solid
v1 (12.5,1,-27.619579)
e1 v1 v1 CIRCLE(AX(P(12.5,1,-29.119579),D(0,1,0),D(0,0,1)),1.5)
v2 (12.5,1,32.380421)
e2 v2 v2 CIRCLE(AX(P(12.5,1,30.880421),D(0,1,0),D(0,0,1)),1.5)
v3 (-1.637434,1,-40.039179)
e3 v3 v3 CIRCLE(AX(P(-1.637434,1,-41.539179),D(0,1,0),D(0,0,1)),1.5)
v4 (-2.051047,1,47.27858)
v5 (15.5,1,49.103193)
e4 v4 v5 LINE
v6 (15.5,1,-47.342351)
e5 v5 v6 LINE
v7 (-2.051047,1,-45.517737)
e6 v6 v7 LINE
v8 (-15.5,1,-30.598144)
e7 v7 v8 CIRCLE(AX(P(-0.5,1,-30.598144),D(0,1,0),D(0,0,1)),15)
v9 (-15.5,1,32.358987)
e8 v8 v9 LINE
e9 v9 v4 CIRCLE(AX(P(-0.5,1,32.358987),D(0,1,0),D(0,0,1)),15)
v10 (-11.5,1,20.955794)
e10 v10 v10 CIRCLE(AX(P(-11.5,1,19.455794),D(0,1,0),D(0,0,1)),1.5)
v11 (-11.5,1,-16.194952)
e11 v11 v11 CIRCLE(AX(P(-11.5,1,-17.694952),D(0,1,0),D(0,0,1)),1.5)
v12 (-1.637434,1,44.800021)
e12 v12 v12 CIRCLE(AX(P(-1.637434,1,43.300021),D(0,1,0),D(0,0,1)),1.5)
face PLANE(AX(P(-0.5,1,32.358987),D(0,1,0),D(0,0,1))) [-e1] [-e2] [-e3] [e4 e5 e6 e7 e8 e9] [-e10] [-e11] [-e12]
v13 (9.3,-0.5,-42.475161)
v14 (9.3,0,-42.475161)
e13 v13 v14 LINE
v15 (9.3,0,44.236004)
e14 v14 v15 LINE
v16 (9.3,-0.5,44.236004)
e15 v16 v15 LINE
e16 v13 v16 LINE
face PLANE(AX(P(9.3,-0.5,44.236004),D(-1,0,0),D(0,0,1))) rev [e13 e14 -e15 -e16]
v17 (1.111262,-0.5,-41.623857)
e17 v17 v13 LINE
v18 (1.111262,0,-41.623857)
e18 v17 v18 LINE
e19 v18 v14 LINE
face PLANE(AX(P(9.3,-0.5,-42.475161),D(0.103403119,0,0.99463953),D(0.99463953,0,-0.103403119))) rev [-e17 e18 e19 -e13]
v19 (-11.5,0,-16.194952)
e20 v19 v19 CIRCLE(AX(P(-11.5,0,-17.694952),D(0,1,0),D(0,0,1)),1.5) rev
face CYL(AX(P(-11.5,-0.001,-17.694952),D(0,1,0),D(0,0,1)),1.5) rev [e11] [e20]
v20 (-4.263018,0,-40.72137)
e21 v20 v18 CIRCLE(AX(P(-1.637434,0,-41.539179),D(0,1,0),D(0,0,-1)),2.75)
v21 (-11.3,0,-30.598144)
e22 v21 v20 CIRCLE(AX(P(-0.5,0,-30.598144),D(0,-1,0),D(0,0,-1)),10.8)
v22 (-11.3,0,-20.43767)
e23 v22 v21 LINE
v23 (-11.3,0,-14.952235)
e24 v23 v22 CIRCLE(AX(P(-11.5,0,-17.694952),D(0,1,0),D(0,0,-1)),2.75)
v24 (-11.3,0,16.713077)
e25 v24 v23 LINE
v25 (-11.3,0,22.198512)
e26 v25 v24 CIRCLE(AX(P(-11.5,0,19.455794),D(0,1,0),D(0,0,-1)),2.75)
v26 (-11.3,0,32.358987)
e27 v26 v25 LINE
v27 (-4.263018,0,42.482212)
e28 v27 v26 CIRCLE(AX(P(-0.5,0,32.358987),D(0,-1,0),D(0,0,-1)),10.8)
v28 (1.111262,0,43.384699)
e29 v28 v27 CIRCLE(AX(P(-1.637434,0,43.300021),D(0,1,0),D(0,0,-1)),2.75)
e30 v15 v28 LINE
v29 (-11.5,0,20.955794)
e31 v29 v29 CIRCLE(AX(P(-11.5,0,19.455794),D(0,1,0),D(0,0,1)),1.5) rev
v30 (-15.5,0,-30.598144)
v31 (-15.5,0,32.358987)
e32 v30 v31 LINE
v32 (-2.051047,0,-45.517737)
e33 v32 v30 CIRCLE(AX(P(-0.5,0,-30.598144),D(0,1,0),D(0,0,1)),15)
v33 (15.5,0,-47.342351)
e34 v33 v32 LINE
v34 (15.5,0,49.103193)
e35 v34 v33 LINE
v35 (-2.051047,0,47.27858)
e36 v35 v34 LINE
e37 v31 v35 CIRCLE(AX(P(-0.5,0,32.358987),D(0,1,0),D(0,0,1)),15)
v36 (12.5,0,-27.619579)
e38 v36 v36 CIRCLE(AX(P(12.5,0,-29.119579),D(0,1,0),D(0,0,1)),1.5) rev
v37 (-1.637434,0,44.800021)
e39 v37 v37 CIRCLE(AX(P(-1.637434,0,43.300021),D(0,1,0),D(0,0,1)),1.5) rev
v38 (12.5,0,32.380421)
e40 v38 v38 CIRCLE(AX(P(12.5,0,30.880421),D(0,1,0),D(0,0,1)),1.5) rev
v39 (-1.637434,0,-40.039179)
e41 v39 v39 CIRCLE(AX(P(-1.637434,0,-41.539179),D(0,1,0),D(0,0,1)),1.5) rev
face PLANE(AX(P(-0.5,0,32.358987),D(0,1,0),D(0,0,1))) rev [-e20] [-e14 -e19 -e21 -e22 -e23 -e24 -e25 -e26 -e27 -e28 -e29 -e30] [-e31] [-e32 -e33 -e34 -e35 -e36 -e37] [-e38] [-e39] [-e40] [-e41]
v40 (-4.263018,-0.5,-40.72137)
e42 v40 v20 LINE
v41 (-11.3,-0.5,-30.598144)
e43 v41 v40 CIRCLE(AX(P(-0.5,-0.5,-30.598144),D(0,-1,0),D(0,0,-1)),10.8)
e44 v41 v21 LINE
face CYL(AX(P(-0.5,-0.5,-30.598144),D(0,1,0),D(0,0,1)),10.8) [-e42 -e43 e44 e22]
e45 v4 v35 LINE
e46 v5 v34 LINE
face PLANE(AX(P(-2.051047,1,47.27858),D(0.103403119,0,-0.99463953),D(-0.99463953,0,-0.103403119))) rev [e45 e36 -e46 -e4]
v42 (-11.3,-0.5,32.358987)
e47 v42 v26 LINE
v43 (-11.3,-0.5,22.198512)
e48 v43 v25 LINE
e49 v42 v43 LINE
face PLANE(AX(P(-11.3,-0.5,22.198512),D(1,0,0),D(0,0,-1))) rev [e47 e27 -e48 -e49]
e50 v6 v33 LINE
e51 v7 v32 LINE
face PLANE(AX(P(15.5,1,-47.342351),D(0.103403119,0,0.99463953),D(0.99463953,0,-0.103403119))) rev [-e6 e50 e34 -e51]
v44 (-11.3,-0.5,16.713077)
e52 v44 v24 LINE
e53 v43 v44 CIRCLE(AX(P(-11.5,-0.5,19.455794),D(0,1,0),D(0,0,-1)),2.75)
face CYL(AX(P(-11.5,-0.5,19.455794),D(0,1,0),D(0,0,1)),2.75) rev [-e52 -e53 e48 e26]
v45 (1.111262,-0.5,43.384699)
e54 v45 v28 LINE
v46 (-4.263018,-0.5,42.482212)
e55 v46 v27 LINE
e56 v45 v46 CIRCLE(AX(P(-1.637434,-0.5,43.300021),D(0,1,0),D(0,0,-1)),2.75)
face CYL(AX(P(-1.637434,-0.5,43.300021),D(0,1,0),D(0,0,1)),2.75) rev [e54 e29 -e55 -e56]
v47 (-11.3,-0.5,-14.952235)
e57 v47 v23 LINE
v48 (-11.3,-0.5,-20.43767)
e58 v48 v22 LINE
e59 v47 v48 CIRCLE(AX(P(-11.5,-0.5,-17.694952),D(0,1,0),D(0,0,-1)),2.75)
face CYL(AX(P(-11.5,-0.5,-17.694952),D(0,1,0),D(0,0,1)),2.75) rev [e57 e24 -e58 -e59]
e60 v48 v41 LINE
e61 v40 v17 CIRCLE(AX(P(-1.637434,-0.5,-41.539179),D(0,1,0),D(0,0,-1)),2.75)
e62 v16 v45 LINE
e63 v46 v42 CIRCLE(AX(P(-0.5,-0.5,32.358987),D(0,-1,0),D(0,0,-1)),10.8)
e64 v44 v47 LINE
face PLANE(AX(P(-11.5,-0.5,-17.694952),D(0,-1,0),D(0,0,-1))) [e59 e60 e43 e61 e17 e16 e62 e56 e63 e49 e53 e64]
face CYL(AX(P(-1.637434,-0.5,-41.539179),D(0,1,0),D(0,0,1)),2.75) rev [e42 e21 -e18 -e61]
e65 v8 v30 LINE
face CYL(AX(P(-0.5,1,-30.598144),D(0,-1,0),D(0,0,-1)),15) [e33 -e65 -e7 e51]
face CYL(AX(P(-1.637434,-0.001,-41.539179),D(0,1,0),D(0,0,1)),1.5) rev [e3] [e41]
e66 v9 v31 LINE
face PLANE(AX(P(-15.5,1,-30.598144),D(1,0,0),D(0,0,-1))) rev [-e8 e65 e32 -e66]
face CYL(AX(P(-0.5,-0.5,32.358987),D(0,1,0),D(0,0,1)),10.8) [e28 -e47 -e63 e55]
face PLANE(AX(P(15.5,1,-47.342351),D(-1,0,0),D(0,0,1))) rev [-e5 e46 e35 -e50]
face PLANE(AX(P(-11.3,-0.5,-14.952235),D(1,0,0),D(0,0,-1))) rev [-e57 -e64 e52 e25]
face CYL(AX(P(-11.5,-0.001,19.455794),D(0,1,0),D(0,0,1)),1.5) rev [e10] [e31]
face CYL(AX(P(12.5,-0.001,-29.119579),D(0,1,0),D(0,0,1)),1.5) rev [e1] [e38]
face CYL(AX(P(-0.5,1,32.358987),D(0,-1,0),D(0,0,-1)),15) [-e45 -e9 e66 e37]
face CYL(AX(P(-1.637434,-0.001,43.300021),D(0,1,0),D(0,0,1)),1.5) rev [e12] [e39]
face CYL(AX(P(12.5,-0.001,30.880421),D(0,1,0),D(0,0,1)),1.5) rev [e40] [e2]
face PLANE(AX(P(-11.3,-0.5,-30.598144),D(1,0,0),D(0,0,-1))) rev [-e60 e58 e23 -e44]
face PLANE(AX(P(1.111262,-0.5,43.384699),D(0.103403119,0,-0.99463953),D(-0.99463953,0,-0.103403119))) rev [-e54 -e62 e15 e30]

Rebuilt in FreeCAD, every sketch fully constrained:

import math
import FreeCAD as App
import Part
import Sketcher

V = App.Vector
Q = App.Units.Quantity

doc = App.newDocument("Part")
body = doc.addObject("PartDesign::Body", "Body")

# Sketch on XZ plane
sketch1 = body.newObject("Sketcher::SketchObject", "Sketch")
sketch1.AttachmentSupport = (doc.getObject("XZ_Plane"), [""])
sketch1.MapMode = "FlatFace"
sketch1.addGeometry([
    Part.LineSegment(V(16, -47, 0), V(-2, -46, 0)),  # 0
    Part.ArcOfCircle(Part.Circle(V(0, -31, 0), V(0, 0, 1), 15), math.radians(180), math.radians(264)),  # 1
    Part.LineSegment(V(-16, -31, 0), V(-16, 32, 0)),  # 2
    Part.ArcOfCircle(Part.Circle(V(0, 32, 0), V(0, 0, 1), 15), math.radians(96), math.radians(180)),  # 3
    Part.LineSegment(V(-2, 47, 0), V(16, 49, 0)),  # 4
    Part.LineSegment(V(16, 49, 0), V(16, -47, 0)),  # 5
], False)
sketch1.addConstraint([
    Sketcher.Constraint("Tangent", 0, 2, 1, 2),
    Sketcher.Constraint("Tangent", 1, 1, 2, 1),
    Sketcher.Constraint("Tangent", 2, 2, 3, 2),
    Sketcher.Constraint("Tangent", 3, 1, 4, 1),
    Sketcher.Constraint("Coincident", 4, 2, 5, 1),
    Sketcher.Constraint("Coincident", 5, 2, 0, 1),
    Sketcher.Constraint("Vertical", 2),
    Sketcher.Constraint("Vertical", 5),
    Sketcher.Constraint("Equal", 1, 3),
    Sketcher.Constraint("Vertical", 0, 2, 3, 1),
    Sketcher.Constraint("Radius", 1, Q("15 mm")),
    Sketcher.Constraint("DistanceX", 3, 3, 4, 2, Q("16 mm")),
    Sketcher.Constraint("DistanceX", 1, 3, -1, 1, Q("0.5 mm")),
    Sketcher.Constraint("DistanceY", 2, 1, 2, 2, Q("62.957131 mm")),
    Sketcher.Constraint("DistanceY", 5, 2, 5, 1, Q("96.445545 mm")),
    Sketcher.Constraint("DistanceY", -1, 1, 3, 1, Q("47.27858 mm")),
])
pad1 = body.newObject("PartDesign::Pad", "Pad")
pad1.Profile = sketch1
pad1.Length = 1
pad1.Reversed = True

# Sketch on XZ plane
sketch2 = body.newObject("Sketcher::SketchObject", "Sketch001")
sketch2.AttachmentSupport = (doc.getObject("XZ_Plane"), [""])
sketch2.MapMode = "FlatFace"
sketch2.AttachmentOffset = App.Placement(V(0, 0, -1), App.Rotation())
sketch2.addGeometry(Part.Circle(V(-1.6, -41.5, 0), V(0, 0, 1), 1.5), False)
sketch2.addConstraint([
    Sketcher.Constraint("Diameter", 0, Q("3 mm")),
    Sketcher.Constraint("DistanceY", 0, 3, -1, 1, Q("41.539179 mm")),
    Sketcher.Constraint("DistanceX", 0, 3, -1, 1, Q("1.637434 mm")),
])
pocket1 = body.newObject("PartDesign::Pocket", "Pocket")
pocket1.Profile = sketch2
pocket1.Type = "UpToFirst"
pocket1.Reversed = True

# Sketch on XZ plane
sketch3 = body.newObject("Sketcher::SketchObject", "Sketch002")
sketch3.AttachmentSupport = (doc.getObject("XZ_Plane"), [""])
sketch3.MapMode = "FlatFace"
sketch3.AttachmentOffset = App.Placement(V(0, 0, -1), App.Rotation())
sketch3.addGeometry(Part.Circle(V(-11.5, -17.7, 0), V(0, 0, 1), 1.5), False)
sketch3.addConstraint([
    Sketcher.Constraint("Diameter", 0, Q("3 mm")),
    Sketcher.Constraint("DistanceX", 0, 3, -1, 1, Q("11.5 mm")),
    Sketcher.Constraint("DistanceY", 0, 3, -1, 1, Q("17.694952 mm")),
])
pocket2 = body.newObject("PartDesign::Pocket", "Pocket001")
pocket2.Profile = sketch3
pocket2.Type = "UpToFirst"
pocket2.Reversed = True

# Sketch on XZ plane
sketch4 = body.newObject("Sketcher::SketchObject", "Sketch003")
sketch4.AttachmentSupport = (doc.getObject("XZ_Plane"), [""])
sketch4.MapMode = "FlatFace"
sketch4.AttachmentOffset = App.Placement(V(0, 0, -1), App.Rotation())
sketch4.addGeometry(Part.Circle(V(-11.5, 19.5, 0), V(0, 0, 1), 1.5), False)
sketch4.addConstraint([
    Sketcher.Constraint("Diameter", 0, Q("3 mm")),
    Sketcher.Constraint("DistanceX", 0, 3, -1, 1, Q("11.5 mm")),
    Sketcher.Constraint("DistanceY", -1, 1, 0, 3, Q("19.455794 mm")),
])
pocket3 = body.newObject("PartDesign::Pocket", "Pocket002")
pocket3.Profile = sketch4
pocket3.Type = "UpToFirst"
pocket3.Reversed = True

# Sketch on XZ plane
sketch5 = body.newObject("Sketcher::SketchObject", "Sketch004")
sketch5.AttachmentSupport = (doc.getObject("XZ_Plane"), [""])
sketch5.MapMode = "FlatFace"
sketch5.AttachmentOffset = App.Placement(V(0, 0, -1), App.Rotation())
sketch5.addGeometry(Part.Circle(V(-1.6, 43.3, 0), V(0, 0, 1), 1.5), False)
sketch5.addConstraint([
    Sketcher.Constraint("Diameter", 0, Q("3 mm")),
    Sketcher.Constraint("DistanceY", -1, 1, 0, 3, Q("43.300021 mm")),
    Sketcher.Constraint("DistanceX", 0, 3, -1, 1, Q("1.637434 mm")),
])
pocket4 = body.newObject("PartDesign::Pocket", "Pocket003")
pocket4.Profile = sketch5
pocket4.Type = "UpToFirst"
pocket4.Reversed = True

# Sketch on XZ plane
sketch6 = body.newObject("Sketcher::SketchObject", "Sketch005")
sketch6.AttachmentSupport = (doc.getObject("XZ_Plane"), [""])
sketch6.MapMode = "FlatFace"
sketch6.AttachmentOffset = App.Placement(V(0, 0, -1), App.Rotation())
sketch6.addGeometry(Part.Circle(V(12.5, -29.1, 0), V(0, 0, 1), 1.5), False)
sketch6.addConstraint([
    Sketcher.Constraint("Diameter", 0, Q("3 mm")),
    Sketcher.Constraint("DistanceX", -1, 1, 0, 3, Q("12.5 mm")),
    Sketcher.Constraint("DistanceY", 0, 3, -1, 1, Q("29.119579 mm")),
])
pocket5 = body.newObject("PartDesign::Pocket", "Pocket004")
pocket5.Profile = sketch6
pocket5.Type = "UpToFirst"
pocket5.Reversed = True

# Sketch on XZ plane
sketch7 = body.newObject("Sketcher::SketchObject", "Sketch006")
sketch7.AttachmentSupport = (doc.getObject("XZ_Plane"), [""])
sketch7.MapMode = "FlatFace"
sketch7.AttachmentOffset = App.Placement(V(0, 0, -1), App.Rotation())
sketch7.addGeometry(Part.Circle(V(12.5, 30.9, 0), V(0, 0, 1), 1.5), False)
sketch7.addConstraint([
    Sketcher.Constraint("Diameter", 0, Q("3 mm")),
    Sketcher.Constraint("DistanceX", -1, 1, 0, 3, Q("12.5 mm")),
    Sketcher.Constraint("DistanceY", -1, 1, 0, 3, Q("30.880421 mm")),
])
pocket6 = body.newObject("PartDesign::Pocket", "Pocket005")
pocket6.Profile = sketch7
pocket6.Type = "UpToFirst"
pocket6.Reversed = True

# Sketch on XZ plane
sketch8 = body.newObject("Sketcher::SketchObject", "Sketch007")
sketch8.AttachmentSupport = (doc.getObject("XZ_Plane"), [""])
sketch8.MapMode = "FlatFace"
sketch8.addGeometry([
    Part.LineSegment(V(-11.3, 16.713077, 0), V(-11.3, -14.952235, 0)),  # 0
    Part.ArcOfCircle(Part.Circle(V(-11.5, -17.694952, 0), V(0, 0, 1), 2.75), math.radians(-85.829352), math.radians(85.829352)),  # 1
    Part.LineSegment(V(-11.3, -20.43767, 0), V(-11.3, -30.598144, 0)),  # 2
    Part.ArcOfCircle(Part.Circle(V(-0.5, -30.598144, 0), V(0, 0, 1), 10.8), math.radians(180), math.radians(249.608832)),  # 3
    Part.ArcOfCircle(Part.Circle(V(-1.637434, -41.539179, 0), V(0, 0, 1), 2.75), math.radians(-1.764523), math.radians(162.699383)),  # 4
    Part.LineSegment(V(1.111262, -41.623857, 0), V(9.3, -42.475161, 0)),  # 5
    Part.LineSegment(V(9.3, -42.475161, 0), V(9.3, 44.236004, 0)),  # 6
    Part.LineSegment(V(9.3, 44.236004, 0), V(1.111262, 43.384699, 0)),  # 7
    Part.ArcOfCircle(Part.Circle(V(-1.637434, 43.300021, 0), V(0, 0, 1), 2.75), math.radians(-162.699383), math.radians(1.764523)),  # 8
    Part.ArcOfCircle(Part.Circle(V(-0.5, 32.358987, 0), V(0, 0, 1), 10.8), math.radians(110.391168), math.radians(180)),  # 9
    Part.LineSegment(V(-11.3, 32.358987, 0), V(-11.3, 22.198512, 0)),  # 10
    Part.ArcOfCircle(Part.Circle(V(-11.5, 19.455794, 0), V(0, 0, 1), 2.75), math.radians(-85.829352), math.radians(85.829352)),  # 11
], False)
sketch8.addConstraint([
    Sketcher.Constraint("Coincident", 0, 2, 1, 2),
    Sketcher.Constraint("Coincident", 1, 1, 2, 1),
    Sketcher.Constraint("Coincident", 2, 2, 3, 1),
    Sketcher.Constraint("Coincident", 3, 2, 4, 2),
    Sketcher.Constraint("Coincident", 4, 1, 5, 1),
    Sketcher.Constraint("Coincident", 5, 2, 6, 1),
    Sketcher.Constraint("Coincident", 6, 2, 7, 1),
    Sketcher.Constraint("Coincident", 7, 2, 8, 2),
    Sketcher.Constraint("Coincident", 8, 1, 9, 1),
    Sketcher.Constraint("Coincident", 9, 2, 10, 1),
    Sketcher.Constraint("Coincident", 10, 2, 11, 2),
    Sketcher.Constraint("Coincident", 11, 1, 0, 1),
    Sketcher.Constraint("Vertical", 0),
    Sketcher.Constraint("Vertical", 2),
    Sketcher.Constraint("Vertical", 6),
    Sketcher.Constraint("Vertical", 10),
    Sketcher.Constraint("Radius", 3, Q("10.8 mm")),
    Sketcher.Constraint("Radius", 9, Q("10.8 mm")),
    Sketcher.Constraint("Radius", 1, Q("2.75 mm")),
    Sketcher.Constraint("Radius", 4, Q("2.75 mm")),
    Sketcher.Constraint("Radius", 8, Q("2.75 mm")),
    Sketcher.Constraint("Radius", 11, Q("2.75 mm")),
    Sketcher.Constraint("DistanceX", 1, 3, 3, 3, Q("11 mm")),
    Sketcher.Constraint("DistanceX", 1, 3, 9, 3, Q("11 mm")),
    Sketcher.Constraint("DistanceX", 11, 3, 9, 3, Q("11 mm")),
    Sketcher.Constraint("DistanceX", 1, 3, -1, 1, Q("11.5 mm")),
    Sketcher.Constraint("DistanceX", 0, 2, -1, 1, Q("11.3 mm")),
    Sketcher.Constraint("DistanceX", -1, 1, 5, 2, Q("9.3 mm")),
    Sketcher.Constraint("DistanceY", 0, 2, 0, 1, Q("31.665311 mm")),
    Sketcher.Constraint("DistanceY", -1, 1, 7, 2, Q("43.384699 mm")),
    Sketcher.Constraint("DistanceY", 4, 3, 8, 3, Q("84.839201 mm")),
    Sketcher.Constraint("DistanceY", 3, 2, 1, 1, Q("20.2837 mm")),
    Sketcher.Constraint("DistanceY", 10, 2, 8, 1, Q("20.2837 mm")),
    Sketcher.Constraint("Distance", 5, Q("8.23287 mm")),
    Sketcher.Constraint("Distance", 7, Q("8.23287 mm")),
    Sketcher.Constraint("DistanceY", 2, 2, 2, 1, Q("10.160475 mm")),
    Sketcher.Constraint("DistanceY", 6, 1, 6, 2, Q("86.711165 mm")),
    Sketcher.Constraint("DistanceY", 10, 2, 10, 1, Q("10.160475 mm")),
    Sketcher.Constraint("DistanceY", 4, 3, -1, 1, Q("41.539179 mm")),
    Sketcher.Constraint("DistanceY", 1, 1, -1, 1, Q("20.43767 mm")),
    Sketcher.Constraint("DistanceX", -1, 1, 4, 1, Q("1.111262 mm")),
    Sketcher.Constraint("DistanceY", 5, 2, -1, 1, Q("42.475161 mm")),
])
pad2 = body.newObject("PartDesign::Pad", "Pad001")
pad2.Profile = sketch8
pad2.Length = 0.5

doc.recompute()
